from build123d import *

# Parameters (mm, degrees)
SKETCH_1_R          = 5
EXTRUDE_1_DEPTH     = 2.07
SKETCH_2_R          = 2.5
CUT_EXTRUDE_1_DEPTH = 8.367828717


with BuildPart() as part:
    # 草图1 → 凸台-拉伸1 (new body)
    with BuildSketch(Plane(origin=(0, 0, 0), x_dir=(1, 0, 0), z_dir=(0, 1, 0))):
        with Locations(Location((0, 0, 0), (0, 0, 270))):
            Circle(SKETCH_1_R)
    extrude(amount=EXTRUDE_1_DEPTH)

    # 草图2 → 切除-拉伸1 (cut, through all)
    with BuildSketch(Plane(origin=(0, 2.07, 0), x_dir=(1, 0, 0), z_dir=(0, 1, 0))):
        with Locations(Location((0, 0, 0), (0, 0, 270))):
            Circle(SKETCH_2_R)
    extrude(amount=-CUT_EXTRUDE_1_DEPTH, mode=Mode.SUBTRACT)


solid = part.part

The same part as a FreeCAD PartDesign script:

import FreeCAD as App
import Part
import Sketcher
Q = App.Units.Quantity

doc = App.newDocument("Part")
params = doc.addObject("Spreadsheet::Sheet", "Params")
for row, (alias, value) in enumerate([
    ("sketch1_diameter", "10 mm"),
    ("pad1_length", "2.07 mm"),
    ("sketch2_diameter", "5 mm"),
], start=1):
    params.set(f"A{row}", alias)
    params.set(f"B{row}", "=" + value)
    params.setAlias(f"B{row}", alias)

body = doc.addObject("PartDesign::Body", "Body")

# Sketch on XZ plane
sketch1 = doc.addObject("Sketcher::SketchObject", "Sketch")
body.addObject(sketch1)
sketch1.AttachmentSupport = (doc.XZ_Plane, [""])
sketch1.MapMode = "FlatFace"
sketch1.addGeometry(Part.Circle(App.Vector(0, 0, 0), App.Vector(0, 0, 1), 5), False)
sketch1.addConstraint(Sketcher.Constraint("Coincident", 0, 3, -1, 1))
sketch1.addConstraint(Sketcher.Constraint("Diameter", 0, Q("10 mm")))
sketch1.setExpression("Constraints[1]", "Params.sketch1_diameter")
pad1 = doc.addObject("PartDesign::Pad", "Pad")
body.addObject(pad1)
pad1.Profile = sketch1
pad1.setExpression("Length", "Params.pad1_length")
pad1.Reversed = True

# Sketch on XZ plane
sketch2 = doc.addObject("Sketcher::SketchObject", "Sketch001")
body.addObject(sketch2)
sketch2.AttachmentSupport = (doc.XZ_Plane, [""])
sketch2.MapMode = "FlatFace"
sketch2.AttachmentOffset = App.Placement(App.Vector(0, 0, -2.07), App.Rotation())
sketch2.addGeometry(Part.Circle(App.Vector(0, 0, 0), App.Vector(0, 0, 1), 2.5), False)
sketch2.addConstraint(Sketcher.Constraint("Coincident", 0, 3, -1, 1))
sketch2.addConstraint(Sketcher.Constraint("Diameter", 0, Q("5 mm")))
sketch2.setExpression("Constraints[1]", "Params.sketch2_diameter")
pocket1 = doc.addObject("PartDesign::Pocket", "Pocket")
body.addObject(pocket1)
pocket1.Profile = sketch2
pocket1.Type = "ThroughAll"
pocket1.Reversed = True

doc.recompute()
